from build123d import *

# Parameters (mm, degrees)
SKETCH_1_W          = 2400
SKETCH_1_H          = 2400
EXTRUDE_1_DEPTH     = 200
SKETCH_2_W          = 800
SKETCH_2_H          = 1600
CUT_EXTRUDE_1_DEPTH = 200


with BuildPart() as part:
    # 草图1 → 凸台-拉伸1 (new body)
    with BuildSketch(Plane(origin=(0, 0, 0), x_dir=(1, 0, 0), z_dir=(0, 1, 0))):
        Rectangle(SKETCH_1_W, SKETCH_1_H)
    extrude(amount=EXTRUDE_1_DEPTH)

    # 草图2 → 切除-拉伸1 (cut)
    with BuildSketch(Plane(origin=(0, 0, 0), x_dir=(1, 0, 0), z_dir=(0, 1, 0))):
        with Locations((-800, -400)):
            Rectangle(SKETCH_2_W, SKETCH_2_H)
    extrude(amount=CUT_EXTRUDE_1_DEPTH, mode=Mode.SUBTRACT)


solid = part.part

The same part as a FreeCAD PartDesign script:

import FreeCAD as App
import Part
import Sketcher
from FreeCAD import Vector
Q = App.Units.Quantity


def add_polygon(sketch, points):
    """Adds a closed chain of lines whose ends are joined by coincident constraints."""
    first, n = sketch.GeometryCount, len(points)
    for a, b in zip(points, points[1:] + points[:1]):
        sketch.addGeometry(Part.LineSegment(App.Vector(*a, 0), App.Vector(*b, 0)), False)
    for i in range(n):
        sketch.addConstraint(Sketcher.Constraint("Coincident", first + i, 2, first + (i + 1) % n, 1))

doc = App.newDocument("Part")
body = doc.addObject("PartDesign::Body", "Body")

sketch1 = body.newObject("Sketcher::SketchObject", "Sketch")
sketch1.AttachmentSupport = (doc.getObject("XZ_Plane"), [""])
sketch1.MapMode = "FlatFace"
add_polygon(sketch1, [(-1200, -1200), (-1200, 1200), (1200, 1200), (1200, -1200)])
sketch1.addConstraint([
    Sketcher.Constraint("Vertical", 0),
    Sketcher.Constraint("Horizontal", 1),
    Sketcher.Constraint("Vertical", 2),
    Sketcher.Constraint("Horizontal", 3),
    Sketcher.Constraint("Symmetric", 0, 2, 2, 2, -1, 1),
    Sketcher.Constraint("Equal", 3, 0),
    Sketcher.Constraint("DistanceX", 1, 1, 1, 2, Q("2400 mm")),
])
pad1 = body.newObject("PartDesign::Pad", "Pad")
pad1.Profile = sketch1
pad1.Length = 200
pad1.Reversed = True

sketch2 = body.newObject("Sketcher::SketchObject", "Sketch001")
sketch2.AttachmentSupport = (doc.getObject("XZ_Plane"), [""])
sketch2.MapMode = "FlatFace"
add_polygon(sketch2, [(-1200, -400), (-1200, 1200), (-400, 1200), (-400, -400)])
sketch2.addConstraint([
    Sketcher.Constraint("Vertical", 0),
    Sketcher.Constraint("Horizontal", 1),
    Sketcher.Constraint("Vertical", 2),
    Sketcher.Constraint("Horizontal", 3),
    Sketcher.Constraint("DistanceX", 1, 1, 1, 2, Q("800 mm")),
    Sketcher.Constraint("DistanceY", 0, 1, 0, 2, Q("1600 mm")),
    Sketcher.Constraint("DistanceX", 0, 2, -1, 1, Q("1200 mm")),
    Sketcher.Constraint("DistanceY", -1, 1, 0, 2, Q("1200 mm")),
])
pocket1 = body.newObject("PartDesign::Pocket", "Pocket")
pocket1.Profile = sketch2
pocket1.Length = 200

doc.recompute()
